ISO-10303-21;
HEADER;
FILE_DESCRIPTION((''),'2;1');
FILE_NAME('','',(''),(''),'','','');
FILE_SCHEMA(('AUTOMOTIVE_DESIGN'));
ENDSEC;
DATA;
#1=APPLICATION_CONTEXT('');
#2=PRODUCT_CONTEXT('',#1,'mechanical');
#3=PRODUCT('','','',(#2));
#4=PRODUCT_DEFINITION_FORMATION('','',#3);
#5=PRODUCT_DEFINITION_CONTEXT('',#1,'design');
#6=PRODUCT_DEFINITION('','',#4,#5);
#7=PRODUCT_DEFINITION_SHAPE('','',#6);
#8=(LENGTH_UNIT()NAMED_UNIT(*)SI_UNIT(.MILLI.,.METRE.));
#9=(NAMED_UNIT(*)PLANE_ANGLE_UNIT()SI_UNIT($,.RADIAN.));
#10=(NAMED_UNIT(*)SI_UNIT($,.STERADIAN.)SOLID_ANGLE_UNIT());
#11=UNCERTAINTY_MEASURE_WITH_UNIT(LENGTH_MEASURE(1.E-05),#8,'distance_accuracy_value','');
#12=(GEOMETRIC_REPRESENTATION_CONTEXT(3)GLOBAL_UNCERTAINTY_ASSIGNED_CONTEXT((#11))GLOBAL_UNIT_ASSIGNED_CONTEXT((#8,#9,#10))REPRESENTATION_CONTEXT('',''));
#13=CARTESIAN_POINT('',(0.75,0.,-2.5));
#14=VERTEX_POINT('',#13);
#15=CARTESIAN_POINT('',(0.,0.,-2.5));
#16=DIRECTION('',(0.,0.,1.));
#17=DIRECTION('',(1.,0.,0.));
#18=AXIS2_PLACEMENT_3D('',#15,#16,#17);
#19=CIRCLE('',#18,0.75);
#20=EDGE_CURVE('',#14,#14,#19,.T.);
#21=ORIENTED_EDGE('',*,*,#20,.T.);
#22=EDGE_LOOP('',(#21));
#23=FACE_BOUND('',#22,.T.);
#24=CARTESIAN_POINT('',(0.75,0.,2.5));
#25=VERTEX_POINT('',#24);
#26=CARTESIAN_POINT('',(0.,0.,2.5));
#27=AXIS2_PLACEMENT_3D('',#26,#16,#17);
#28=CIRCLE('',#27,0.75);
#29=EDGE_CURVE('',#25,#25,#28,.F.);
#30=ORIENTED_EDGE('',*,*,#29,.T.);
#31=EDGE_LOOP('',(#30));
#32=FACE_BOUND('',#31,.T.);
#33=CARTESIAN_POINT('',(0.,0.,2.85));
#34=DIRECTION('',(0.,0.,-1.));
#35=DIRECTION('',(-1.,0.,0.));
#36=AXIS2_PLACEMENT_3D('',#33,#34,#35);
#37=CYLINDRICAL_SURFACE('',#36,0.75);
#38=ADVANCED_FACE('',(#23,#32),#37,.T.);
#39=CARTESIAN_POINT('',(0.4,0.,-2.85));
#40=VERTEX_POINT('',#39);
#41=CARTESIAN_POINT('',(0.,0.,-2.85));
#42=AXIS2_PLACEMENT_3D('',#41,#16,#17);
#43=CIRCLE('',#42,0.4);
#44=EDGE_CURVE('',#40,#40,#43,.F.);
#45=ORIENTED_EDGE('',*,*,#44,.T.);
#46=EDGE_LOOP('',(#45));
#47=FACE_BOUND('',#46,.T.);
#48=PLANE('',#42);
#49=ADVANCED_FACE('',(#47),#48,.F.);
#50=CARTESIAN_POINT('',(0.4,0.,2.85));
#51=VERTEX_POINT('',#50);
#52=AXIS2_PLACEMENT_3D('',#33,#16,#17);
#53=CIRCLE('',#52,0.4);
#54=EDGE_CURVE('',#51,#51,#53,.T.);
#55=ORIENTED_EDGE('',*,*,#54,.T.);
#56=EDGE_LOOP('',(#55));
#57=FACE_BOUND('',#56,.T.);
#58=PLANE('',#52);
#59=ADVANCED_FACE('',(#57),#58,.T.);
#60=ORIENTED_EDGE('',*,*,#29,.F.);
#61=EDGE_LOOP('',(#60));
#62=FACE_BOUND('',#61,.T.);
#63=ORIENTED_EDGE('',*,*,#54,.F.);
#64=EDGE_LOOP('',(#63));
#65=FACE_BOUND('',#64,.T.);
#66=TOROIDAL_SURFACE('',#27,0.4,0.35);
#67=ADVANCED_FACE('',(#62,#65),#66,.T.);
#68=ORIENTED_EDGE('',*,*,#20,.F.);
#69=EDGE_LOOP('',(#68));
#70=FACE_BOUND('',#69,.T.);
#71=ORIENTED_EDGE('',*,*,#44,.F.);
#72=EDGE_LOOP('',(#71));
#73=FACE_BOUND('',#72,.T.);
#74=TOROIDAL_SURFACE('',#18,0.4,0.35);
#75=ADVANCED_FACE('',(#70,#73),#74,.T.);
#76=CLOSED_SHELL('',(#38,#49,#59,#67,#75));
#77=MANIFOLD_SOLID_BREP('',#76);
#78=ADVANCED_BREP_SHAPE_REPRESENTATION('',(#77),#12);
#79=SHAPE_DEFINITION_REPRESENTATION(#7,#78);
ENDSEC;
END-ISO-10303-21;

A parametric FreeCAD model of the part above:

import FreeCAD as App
import Part
import Sketcher
from FreeCAD import Vector


def edges_at(feature, points):
    """Names of the edges that pass closest to the given points."""
    edges = feature.Shape.Edges
    near = lambda p: min(range(len(edges)), key=lambda i: edges[i].distToShape(Part.Vertex(*p))[0])
    return sorted({f"Edge{near(p) + 1}" for p in points})

doc = App.newDocument("Part")
body = doc.addObject("PartDesign::Body", "Body")

# Sketch on XY plane
sketch1 = body.newObject("Sketcher::SketchObject", "Sketch")
sketch1.AttachmentSupport = (doc.getObject("XY_Plane"), [""])
sketch1.MapMode = "FlatFace"
sketch1.addGeometry(Part.Circle(Vector(0, 0, 0), Vector(0, 0, 1), 0.75), False)
sketch1.addConstraint(Sketcher.Constraint("Coincident", 0, 3, -1, 1))
sketch1.addConstraint(Sketcher.Constraint("Diameter", 0, 1.5))
pad1 = body.newObject("PartDesign::Pad", "Pad")
pad1.Profile = sketch1
pad1.Length = 5.7
pad1.Midplane = True
doc.recompute()

fillet = body.newObject("PartDesign::Fillet", "Fillet")
fillet.Base = (pad1, edges_at(pad1, [(-0.75, 0, -2.85), (-0.75, 0, 2.85)]))
fillet.Radius = 0.35

doc.recompute()
